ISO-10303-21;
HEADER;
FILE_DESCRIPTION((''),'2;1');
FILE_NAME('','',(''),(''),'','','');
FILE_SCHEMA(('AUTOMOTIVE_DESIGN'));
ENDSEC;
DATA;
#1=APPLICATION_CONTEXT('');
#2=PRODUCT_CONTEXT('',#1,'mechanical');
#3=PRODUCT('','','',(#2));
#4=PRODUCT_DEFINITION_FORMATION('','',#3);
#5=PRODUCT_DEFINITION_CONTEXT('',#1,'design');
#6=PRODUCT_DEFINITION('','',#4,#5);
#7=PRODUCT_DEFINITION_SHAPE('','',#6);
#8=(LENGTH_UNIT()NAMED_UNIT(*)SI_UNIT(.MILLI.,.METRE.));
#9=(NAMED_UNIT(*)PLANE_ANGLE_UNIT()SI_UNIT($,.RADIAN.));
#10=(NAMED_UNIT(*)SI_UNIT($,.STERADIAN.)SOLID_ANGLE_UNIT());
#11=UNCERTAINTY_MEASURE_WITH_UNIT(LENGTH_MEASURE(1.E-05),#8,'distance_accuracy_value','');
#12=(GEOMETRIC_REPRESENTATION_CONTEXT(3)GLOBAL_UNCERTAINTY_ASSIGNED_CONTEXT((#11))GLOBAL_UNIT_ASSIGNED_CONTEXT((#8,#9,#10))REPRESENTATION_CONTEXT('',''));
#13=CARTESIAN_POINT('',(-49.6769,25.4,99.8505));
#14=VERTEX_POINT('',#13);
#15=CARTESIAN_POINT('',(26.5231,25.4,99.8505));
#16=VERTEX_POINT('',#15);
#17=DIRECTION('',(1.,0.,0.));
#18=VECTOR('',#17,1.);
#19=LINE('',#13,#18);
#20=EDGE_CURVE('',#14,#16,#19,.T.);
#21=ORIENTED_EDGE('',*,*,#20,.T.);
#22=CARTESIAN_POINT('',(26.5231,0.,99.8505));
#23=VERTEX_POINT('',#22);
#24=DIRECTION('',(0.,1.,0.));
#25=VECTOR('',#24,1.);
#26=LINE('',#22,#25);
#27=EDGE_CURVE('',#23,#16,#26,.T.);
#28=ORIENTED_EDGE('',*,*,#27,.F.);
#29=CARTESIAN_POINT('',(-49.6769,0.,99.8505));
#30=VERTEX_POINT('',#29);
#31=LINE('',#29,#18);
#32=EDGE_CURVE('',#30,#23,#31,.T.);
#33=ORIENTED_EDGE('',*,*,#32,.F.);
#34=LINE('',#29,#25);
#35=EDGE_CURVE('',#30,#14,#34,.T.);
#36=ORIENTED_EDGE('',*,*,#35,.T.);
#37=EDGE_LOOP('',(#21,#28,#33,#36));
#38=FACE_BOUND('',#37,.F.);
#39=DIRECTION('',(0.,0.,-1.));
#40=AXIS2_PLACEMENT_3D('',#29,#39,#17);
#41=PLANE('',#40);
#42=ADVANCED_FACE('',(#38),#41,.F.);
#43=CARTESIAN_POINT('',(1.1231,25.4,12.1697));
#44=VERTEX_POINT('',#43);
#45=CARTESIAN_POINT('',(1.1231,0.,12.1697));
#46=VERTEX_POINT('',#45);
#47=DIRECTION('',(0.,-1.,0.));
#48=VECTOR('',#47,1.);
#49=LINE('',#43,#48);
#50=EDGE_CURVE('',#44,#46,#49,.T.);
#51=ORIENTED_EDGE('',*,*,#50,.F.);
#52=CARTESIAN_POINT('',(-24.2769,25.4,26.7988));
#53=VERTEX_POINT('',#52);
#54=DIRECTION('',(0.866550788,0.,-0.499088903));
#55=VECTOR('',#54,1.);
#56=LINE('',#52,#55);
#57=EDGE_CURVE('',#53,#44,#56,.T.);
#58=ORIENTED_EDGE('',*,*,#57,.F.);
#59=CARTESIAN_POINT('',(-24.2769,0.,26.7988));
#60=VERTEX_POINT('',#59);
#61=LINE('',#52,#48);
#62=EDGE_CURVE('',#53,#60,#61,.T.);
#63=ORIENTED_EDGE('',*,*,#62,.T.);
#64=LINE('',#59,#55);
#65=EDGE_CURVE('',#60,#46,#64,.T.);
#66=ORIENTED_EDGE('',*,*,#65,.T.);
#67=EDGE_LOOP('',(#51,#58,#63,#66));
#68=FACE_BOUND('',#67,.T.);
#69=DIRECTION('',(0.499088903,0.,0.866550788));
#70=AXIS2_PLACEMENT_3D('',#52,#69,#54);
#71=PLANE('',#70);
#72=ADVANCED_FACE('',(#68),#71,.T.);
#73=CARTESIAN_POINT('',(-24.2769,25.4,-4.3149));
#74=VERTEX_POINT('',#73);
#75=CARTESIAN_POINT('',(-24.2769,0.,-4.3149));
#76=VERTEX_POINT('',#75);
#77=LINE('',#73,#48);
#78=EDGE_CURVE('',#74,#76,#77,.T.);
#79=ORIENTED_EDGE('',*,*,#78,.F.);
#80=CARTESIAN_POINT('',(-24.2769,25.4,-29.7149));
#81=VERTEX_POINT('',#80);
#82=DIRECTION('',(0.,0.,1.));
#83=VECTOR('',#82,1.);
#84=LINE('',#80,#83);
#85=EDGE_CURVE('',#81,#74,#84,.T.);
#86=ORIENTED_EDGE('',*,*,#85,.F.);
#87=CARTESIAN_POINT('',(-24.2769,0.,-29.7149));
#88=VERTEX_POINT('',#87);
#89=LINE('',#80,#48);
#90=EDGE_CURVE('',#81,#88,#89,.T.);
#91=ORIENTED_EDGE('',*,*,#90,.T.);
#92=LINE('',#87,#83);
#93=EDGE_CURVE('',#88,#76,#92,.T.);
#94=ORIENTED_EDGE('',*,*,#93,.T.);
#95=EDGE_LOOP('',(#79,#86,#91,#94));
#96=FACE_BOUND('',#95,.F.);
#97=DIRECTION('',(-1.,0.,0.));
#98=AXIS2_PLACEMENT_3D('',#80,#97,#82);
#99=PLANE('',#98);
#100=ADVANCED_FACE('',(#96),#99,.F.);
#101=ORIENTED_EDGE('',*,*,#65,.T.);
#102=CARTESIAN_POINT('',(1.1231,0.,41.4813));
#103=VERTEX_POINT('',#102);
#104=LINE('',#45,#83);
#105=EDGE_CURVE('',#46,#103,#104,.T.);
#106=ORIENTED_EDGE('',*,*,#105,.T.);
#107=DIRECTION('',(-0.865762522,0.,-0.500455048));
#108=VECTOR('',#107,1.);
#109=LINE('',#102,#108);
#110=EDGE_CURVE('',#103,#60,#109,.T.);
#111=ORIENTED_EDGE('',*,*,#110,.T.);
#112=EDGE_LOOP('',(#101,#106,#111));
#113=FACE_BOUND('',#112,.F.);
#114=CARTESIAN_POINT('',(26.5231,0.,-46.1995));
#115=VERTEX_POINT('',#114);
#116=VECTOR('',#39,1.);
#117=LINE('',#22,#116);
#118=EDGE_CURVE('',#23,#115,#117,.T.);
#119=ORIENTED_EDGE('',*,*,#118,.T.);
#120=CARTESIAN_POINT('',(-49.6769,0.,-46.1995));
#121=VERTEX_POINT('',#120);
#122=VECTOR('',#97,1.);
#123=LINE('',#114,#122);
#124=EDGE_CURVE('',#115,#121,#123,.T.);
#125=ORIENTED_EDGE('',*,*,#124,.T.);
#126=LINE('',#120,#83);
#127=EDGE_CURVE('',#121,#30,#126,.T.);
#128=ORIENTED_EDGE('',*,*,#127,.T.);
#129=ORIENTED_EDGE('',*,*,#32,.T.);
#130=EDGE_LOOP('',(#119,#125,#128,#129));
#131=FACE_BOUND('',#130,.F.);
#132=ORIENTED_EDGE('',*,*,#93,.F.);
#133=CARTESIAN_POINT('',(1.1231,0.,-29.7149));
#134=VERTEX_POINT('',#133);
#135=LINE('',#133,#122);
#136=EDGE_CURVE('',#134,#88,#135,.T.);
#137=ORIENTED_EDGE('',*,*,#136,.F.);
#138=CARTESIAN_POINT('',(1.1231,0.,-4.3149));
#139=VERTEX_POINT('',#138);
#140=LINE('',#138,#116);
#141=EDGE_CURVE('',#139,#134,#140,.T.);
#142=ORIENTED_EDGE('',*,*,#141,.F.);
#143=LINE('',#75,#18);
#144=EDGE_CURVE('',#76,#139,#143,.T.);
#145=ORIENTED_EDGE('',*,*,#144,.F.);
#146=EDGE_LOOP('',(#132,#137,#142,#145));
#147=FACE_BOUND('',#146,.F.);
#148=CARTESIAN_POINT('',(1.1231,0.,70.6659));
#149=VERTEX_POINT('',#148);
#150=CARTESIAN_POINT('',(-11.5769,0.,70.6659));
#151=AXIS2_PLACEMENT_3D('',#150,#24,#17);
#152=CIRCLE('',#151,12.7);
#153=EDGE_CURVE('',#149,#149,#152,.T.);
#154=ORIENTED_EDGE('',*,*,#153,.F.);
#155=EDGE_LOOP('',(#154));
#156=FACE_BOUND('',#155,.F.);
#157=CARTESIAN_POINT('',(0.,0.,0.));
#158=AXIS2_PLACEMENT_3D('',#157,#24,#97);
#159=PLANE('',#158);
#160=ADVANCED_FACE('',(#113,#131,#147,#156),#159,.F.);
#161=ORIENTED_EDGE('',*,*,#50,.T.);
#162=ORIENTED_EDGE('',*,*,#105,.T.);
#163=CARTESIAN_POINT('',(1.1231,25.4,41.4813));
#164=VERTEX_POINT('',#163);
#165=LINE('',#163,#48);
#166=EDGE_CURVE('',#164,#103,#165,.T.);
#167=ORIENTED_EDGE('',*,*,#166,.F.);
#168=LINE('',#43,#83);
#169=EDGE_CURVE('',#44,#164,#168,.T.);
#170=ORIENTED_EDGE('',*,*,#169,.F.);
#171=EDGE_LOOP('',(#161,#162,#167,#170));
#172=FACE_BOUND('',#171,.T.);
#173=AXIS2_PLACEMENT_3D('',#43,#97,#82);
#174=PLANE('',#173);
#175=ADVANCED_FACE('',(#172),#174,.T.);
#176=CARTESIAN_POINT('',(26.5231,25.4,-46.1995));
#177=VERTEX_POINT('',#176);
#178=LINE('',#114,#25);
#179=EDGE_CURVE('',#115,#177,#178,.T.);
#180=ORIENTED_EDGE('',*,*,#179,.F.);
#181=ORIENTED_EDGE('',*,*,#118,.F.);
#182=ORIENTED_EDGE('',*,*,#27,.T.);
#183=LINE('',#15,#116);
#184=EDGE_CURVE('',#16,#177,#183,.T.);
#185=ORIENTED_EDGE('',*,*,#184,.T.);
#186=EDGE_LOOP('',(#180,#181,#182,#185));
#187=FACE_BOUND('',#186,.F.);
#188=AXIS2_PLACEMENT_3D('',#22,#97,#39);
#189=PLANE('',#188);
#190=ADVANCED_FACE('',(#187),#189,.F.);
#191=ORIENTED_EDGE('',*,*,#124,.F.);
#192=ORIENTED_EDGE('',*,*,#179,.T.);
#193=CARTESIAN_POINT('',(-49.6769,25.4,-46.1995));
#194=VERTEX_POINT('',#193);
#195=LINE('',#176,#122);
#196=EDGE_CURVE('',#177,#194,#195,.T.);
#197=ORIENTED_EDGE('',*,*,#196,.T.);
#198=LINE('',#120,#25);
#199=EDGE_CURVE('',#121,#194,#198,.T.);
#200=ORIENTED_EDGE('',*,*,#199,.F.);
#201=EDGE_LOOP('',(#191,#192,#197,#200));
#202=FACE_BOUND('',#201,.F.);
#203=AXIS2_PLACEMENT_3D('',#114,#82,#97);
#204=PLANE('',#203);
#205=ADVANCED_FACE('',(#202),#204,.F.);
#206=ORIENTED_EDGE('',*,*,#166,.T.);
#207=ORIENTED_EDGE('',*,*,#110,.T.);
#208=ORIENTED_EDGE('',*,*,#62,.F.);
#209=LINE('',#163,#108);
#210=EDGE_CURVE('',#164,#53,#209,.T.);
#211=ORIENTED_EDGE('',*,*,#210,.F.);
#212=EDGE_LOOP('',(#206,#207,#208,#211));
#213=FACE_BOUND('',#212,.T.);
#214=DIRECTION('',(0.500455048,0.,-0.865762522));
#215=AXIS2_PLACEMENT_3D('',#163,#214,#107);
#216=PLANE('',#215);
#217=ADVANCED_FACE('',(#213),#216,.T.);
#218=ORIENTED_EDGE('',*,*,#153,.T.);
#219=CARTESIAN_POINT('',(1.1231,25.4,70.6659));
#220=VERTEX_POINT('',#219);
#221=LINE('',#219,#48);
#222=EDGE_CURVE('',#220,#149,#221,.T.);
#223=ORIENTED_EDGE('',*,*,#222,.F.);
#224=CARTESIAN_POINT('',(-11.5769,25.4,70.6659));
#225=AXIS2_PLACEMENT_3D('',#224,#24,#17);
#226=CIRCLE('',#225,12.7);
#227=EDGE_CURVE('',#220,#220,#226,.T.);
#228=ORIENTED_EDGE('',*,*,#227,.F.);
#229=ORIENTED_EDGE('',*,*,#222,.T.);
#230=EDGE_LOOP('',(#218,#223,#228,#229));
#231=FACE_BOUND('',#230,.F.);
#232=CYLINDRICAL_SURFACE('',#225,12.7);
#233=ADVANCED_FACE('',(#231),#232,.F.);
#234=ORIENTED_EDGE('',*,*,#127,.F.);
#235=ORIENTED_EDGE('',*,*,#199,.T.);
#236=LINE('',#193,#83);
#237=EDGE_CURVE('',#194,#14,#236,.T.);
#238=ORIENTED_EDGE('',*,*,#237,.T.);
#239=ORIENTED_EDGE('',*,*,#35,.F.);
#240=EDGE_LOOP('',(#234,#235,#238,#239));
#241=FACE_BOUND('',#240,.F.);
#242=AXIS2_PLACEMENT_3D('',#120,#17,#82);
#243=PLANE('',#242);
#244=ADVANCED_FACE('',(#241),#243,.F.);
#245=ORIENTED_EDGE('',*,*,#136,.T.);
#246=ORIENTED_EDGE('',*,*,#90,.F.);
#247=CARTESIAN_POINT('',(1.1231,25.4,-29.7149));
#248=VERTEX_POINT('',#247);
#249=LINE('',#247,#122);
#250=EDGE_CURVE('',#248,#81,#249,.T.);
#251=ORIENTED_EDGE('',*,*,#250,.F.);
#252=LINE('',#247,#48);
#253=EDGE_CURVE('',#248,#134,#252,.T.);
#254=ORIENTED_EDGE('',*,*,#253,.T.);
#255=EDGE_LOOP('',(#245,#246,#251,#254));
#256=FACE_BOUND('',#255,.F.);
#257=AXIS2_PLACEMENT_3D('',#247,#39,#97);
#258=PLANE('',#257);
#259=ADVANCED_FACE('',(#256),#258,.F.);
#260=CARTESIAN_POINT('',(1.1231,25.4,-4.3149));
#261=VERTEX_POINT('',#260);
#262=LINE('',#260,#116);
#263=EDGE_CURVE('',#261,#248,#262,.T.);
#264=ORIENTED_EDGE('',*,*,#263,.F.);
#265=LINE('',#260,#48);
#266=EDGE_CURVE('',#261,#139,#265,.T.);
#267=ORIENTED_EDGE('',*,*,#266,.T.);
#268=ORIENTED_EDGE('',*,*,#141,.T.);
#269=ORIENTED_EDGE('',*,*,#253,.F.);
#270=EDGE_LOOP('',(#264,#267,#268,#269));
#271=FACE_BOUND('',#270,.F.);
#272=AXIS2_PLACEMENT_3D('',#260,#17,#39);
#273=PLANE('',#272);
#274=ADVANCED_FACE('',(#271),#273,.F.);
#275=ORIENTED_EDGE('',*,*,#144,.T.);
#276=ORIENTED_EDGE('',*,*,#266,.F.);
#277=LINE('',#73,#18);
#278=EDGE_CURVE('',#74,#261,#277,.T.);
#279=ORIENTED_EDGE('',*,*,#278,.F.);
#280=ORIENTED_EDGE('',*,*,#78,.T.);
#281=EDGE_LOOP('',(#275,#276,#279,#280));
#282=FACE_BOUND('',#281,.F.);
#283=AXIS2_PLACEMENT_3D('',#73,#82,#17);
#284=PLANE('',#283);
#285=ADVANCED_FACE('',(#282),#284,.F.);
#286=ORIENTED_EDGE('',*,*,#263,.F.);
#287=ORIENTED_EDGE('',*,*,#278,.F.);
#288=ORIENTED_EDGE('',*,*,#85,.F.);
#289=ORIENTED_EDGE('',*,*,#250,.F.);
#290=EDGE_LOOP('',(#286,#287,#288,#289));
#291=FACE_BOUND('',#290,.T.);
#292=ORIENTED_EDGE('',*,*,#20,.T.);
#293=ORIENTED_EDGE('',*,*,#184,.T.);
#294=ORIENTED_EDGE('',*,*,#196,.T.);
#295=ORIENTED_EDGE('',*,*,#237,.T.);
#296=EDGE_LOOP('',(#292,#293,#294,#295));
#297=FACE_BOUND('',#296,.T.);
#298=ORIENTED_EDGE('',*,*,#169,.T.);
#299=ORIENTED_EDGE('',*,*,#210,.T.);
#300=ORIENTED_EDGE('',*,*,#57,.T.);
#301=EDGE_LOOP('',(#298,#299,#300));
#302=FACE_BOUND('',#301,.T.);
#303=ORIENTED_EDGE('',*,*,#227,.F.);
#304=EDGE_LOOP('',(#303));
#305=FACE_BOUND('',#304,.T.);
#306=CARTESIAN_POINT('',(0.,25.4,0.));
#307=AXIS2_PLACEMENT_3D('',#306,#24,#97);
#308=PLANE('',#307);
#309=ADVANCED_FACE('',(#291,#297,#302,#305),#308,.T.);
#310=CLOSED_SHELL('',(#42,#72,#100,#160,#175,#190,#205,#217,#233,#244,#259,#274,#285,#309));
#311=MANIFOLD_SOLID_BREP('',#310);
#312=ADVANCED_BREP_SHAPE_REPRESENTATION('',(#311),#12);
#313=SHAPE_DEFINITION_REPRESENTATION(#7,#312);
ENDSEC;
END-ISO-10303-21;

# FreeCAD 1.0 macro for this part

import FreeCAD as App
import Part
import Sketcher
Q = App.Units.Quantity


def add_polygon(sketch, points):
    """Adds a closed chain of lines whose ends are joined by coincident constraints."""
    first, n = sketch.GeometryCount, len(points)
    for a, b in zip(points, points[1:] + points[:1]):
        sketch.addGeometry(Part.LineSegment(App.Vector(*a, 0), App.Vector(*b, 0)), False)
    for i in range(n):
        sketch.addConstraint(Sketcher.Constraint("Coincident", first + i, 2, first + (i + 1) % n, 1))

doc = App.newDocument("Part")
params = doc.addObject("Spreadsheet::Sheet", "Params")
for row, (alias, value) in enumerate([
    ("sketch1_width", "3 in"),
    ("sketch1_height", "5.75 in"),
    ("pad1_length", "1 in"),
    ("sketch2_diameter", "1 in"),
    ("pocket1_length", "1 in"),
    ("sketch3_width", "1 in"),
    ("pocket2_length", "1 in"),
    ("sketch4_height", "1.154 in"),
    ("sketch4_length", "1.154 in"),
    ("pocket3_length", "1 in"),
], start=1):
    params.set(f"A{row}", alias)
    params.set(f"B{row}", "=" + value)
    params.setAlias(f"B{row}", alias)

body = doc.addObject("PartDesign::Body", "Body")

sketch1 = doc.addObject("Sketcher::SketchObject", "Sketch")
body.addObject(sketch1)
sketch1.AttachmentSupport = (doc.XZ_Plane, [""])
sketch1.MapMode = "FlatFace"
add_polygon(sketch1, [(-50, -46), (-50, 100), (27, 100), (27, -46)])
sketch1.addConstraint([
    Sketcher.Constraint("Vertical", 0),
    Sketcher.Constraint("Horizontal", 1),
    Sketcher.Constraint("Vertical", 2),
    Sketcher.Constraint("Horizontal", 3),
    Sketcher.Constraint("DistanceX", 1, 1, 1, 2, Q("3 in")),
    Sketcher.Constraint("DistanceY", 0, 1, 0, 2, Q("5.75 in")),
    Sketcher.Constraint("DistanceX", 0, 2, -1, 1, Q("49.677 mm")),
    Sketcher.Constraint("DistanceY", -1, 1, 0, 2, Q("99.8505 mm")),
])
sketch1.setExpression("Constraints[8]", "Params.sketch1_width")
sketch1.setExpression("Constraints[9]", "Params.sketch1_height")
pad1 = doc.addObject("PartDesign::Pad", "Pad")
body.addObject(pad1)
pad1.Profile = sketch1
pad1.setExpression("Length", "Params.pad1_length")
pad1.Reversed = True

sketch2 = doc.addObject("Sketcher::SketchObject", "Sketch001")
body.addObject(sketch2)
sketch2.AttachmentSupport = (doc.XZ_Plane, [""])
sketch2.MapMode = "FlatFace"
sketch2.AttachmentOffset = App.Placement(App.Vector(0, 0, -1 * 25.4), App.Rotation())
sketch2.addGeometry(Part.Circle(App.Vector(-12, 71, 0), App.Vector(0, 0, 1), 13), False)
sketch2.addConstraint([
    Sketcher.Constraint("Diameter", 0, Q("1 in")),
    Sketcher.Constraint("DistanceX", 0, 3, -1, 1, Q("11.577 mm")),
    Sketcher.Constraint("DistanceY", -1, 1, 0, 3, Q("70.666 mm")),
])
sketch2.setExpression("Constraints[0]", "Params.sketch2_diameter")
pocket1 = doc.addObject("PartDesign::Pocket", "Pocket")
body.addObject(pocket1)
pocket1.Profile = sketch2
pocket1.setExpression("Length", "Params.pocket1_length")
pocket1.Reversed = True

sketch3 = doc.addObject("Sketcher::SketchObject", "Sketch002")
body.addObject(sketch3)
sketch3.AttachmentSupport = (doc.XZ_Plane, [""])
sketch3.MapMode = "FlatFace"
sketch3.AttachmentOffset = App.Placement(App.Vector(0, 0, -1 * 25.4), App.Rotation())
add_polygon(sketch3, [(-24, -30), (-24, -4), (1, -4), (1, -30)])
sketch3.addConstraint([
    Sketcher.Constraint("Vertical", 0),
    Sketcher.Constraint("Horizontal", 1),
    Sketcher.Constraint("Vertical", 2),
    Sketcher.Constraint("Horizontal", 3),
    Sketcher.Constraint("Equal", 3, 0),
    Sketcher.Constraint("DistanceX", 1, 1, 1, 2, Q("1 in")),
    Sketcher.Constraint("DistanceX", 0, 2, -1, 1, Q("24.277 mm")),
    Sketcher.Constraint("DistanceY", 0, 2, -1, 1, Q("4.315 mm")),
])
sketch3.setExpression("Constraints[9]", "Params.sketch3_width")
pocket2 = doc.addObject("PartDesign::Pocket", "Pocket001")
body.addObject(pocket2)
pocket2.Profile = sketch3
pocket2.setExpression("Length", "Params.pocket2_length")
pocket2.Reversed = True

sketch4 = doc.addObject("Sketcher::SketchObject", "Sketch003")
body.addObject(sketch4)
sketch4.AttachmentSupport = (doc.XZ_Plane, [""])
sketch4.MapMode = "FlatFace"
sketch4.AttachmentOffset = App.Placement(App.Vector(0, 0, -1 * 25.4), App.Rotation())
add_polygon(sketch4, [(1, 41), (1, 12), (-24, 27)])
sketch4.addConstraint([
    Sketcher.Constraint("Vertical", 0),
    Sketcher.Constraint("DistanceX", 1, 2, 0, 2, Q("1 in")),
    Sketcher.Constraint("DistanceY", 0, 2, 0, 1, Q("1.154 in")),
    Sketcher.Constraint("Distance", 1, Q("1.154 in")),
    Sketcher.Constraint("DistanceX", -1, 1, 0, 2, Q("1.123 mm")),
    Sketcher.Constraint("DistanceY", -1, 1, 0, 2, Q("12.1697 mm")),
])
sketch4.setExpression("Constraints[5]", "Params.sketch4_height")
sketch4.setExpression("Constraints[6]", "Params.sketch4_length")
pocket3 = doc.addObject("PartDesign::Pocket", "Pocket002")
body.addObject(pocket3)
pocket3.Profile = sketch4
pocket3.setExpression("Length", "Params.pocket3_length")
pocket3.Reversed = True

doc.recompute()
